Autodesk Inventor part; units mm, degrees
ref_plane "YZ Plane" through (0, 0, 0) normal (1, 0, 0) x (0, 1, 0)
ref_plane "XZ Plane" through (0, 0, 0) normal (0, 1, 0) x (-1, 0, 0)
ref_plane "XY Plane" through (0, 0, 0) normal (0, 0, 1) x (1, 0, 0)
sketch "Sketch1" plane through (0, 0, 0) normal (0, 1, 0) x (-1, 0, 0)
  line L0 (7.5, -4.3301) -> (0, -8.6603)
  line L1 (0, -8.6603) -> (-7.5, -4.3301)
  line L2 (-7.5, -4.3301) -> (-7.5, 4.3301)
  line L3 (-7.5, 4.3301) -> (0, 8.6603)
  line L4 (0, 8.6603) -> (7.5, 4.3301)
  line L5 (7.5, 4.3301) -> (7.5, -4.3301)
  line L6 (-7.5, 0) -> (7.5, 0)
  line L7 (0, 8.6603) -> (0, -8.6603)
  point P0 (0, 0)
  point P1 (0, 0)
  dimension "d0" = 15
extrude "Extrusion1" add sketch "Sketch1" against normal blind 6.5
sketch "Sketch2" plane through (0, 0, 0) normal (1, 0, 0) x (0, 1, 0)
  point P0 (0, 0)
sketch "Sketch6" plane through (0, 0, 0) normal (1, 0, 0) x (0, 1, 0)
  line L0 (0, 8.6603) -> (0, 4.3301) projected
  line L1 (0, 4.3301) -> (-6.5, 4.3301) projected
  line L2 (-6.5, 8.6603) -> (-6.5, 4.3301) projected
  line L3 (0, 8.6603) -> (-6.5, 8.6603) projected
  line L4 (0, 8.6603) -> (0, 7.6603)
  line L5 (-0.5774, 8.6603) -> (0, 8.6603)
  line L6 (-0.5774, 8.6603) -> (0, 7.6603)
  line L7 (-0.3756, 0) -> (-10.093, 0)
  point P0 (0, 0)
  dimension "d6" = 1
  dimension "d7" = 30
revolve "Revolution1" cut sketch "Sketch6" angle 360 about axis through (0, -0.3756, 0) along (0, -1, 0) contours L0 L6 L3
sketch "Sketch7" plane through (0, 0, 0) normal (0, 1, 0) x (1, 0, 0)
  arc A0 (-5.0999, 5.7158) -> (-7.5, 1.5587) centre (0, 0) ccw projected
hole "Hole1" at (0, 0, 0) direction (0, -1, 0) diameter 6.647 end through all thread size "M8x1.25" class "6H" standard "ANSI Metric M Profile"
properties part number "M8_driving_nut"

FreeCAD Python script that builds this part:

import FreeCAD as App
import Part
import Sketcher

V = App.Vector
Q = App.Units.Quantity


def add_polygon(sketch, points):
    """Adds a closed chain of lines whose ends are joined by coincident constraints."""
    first, n = sketch.GeometryCount, len(points)
    for a, b in zip(points, points[1:] + points[:1]):
        sketch.addGeometry(Part.LineSegment(App.Vector(*a, 0), App.Vector(*b, 0)), False)
    for i in range(n):
        sketch.addConstraint(Sketcher.Constraint("Coincident", first + i, 2, first + (i + 1) % n, 1))

doc = App.newDocument("Part")
body = doc.addObject("PartDesign::Body", "Body")

sketch1 = body.newObject("Sketcher::SketchObject", "Sketch")
sketch1.AttachmentSupport = (doc.getObject("XZ_Plane"), [""])
sketch1.MapMode = "FlatFace"
add_polygon(sketch1, [(0, -9), (-8, -4), (-8, 4), (0, 9), (8, 4), (8, -4)])
sketch1.addConstraint([
    Sketcher.Constraint("Vertical", 1),
    Sketcher.Constraint("Vertical", 4),
    Sketcher.Constraint("Symmetric", 0, 2, 3, 2, -1, 1),
    Sketcher.Constraint("Symmetric", 2, 2, 5, 2, -1, 1),
    Sketcher.Constraint("PointOnObject", 2, 2, -2),
    Sketcher.Constraint("Parallel", 2, 5),
    Sketcher.Constraint("Horizontal", 1, 2, 3, 2),
    Sketcher.Constraint("DistanceX", 1, 2, 3, 2, 15.0),
    Sketcher.Constraint("Angle", 0, Q("149.9996 deg")),
    Sketcher.Constraint("DistanceY", 0, 2, -1, 1, 4.33),
])
pad1 = body.newObject("PartDesign::Pad", "Pad")
pad1.Profile = sketch1
pad1.Length = 6.5

sketch2 = body.newObject("Sketcher::SketchObject", "Sketch001")
sketch2.AttachmentSupport = (doc.getObject("YZ_Plane"), [""])
sketch2.MapMode = "FlatFace"
add_polygon(sketch2, [(0, 7.7), (0, 8.7), (-0.6, 8.7)])
sketch2.addConstraint([
    Sketcher.Constraint("Vertical", 0),
    Sketcher.Constraint("Horizontal", 1),
    Sketcher.Constraint("PointOnObject", 0, 2, -2),
    Sketcher.Constraint("DistanceY", 0, 1, 0, 2, 1.0),
    Sketcher.Constraint("DistanceX", 1, 2, 1, 1, 0.5774),
    Sketcher.Constraint("DistanceY", -1, 1, 0, 2, 8.6603),
])
groove = body.newObject("PartDesign::Groove", "Groove")
groove.Profile = sketch2
groove.ReferenceAxis = (sketch2, ["H_Axis"])
groove.Angle = 360

sketch3 = body.newObject("Sketcher::SketchObject", "Sketch002")
sketch3.AttachmentSupport = (doc.getObject("XZ_Plane"), [""])
sketch3.MapMode = "FlatFace"
sketch3.addGeometry(Part.Circle(V(0, 0, 0), V(0, 0, 1), 3.3), False)
sketch3.addConstraint([
    Sketcher.Constraint("Coincident", 0, 3, -1, 1),
    Sketcher.Constraint("Diameter", 0, 6.647),
])
doc.recompute()
hole = body.newObject("PartDesign::Hole", "Hole")
hole.Profile = sketch3
hole.ThreadType = "None"
hole.Diameter = 6.647
hole.DepthType = "ThroughAll"
hole.Reversed = True

doc.recompute()
